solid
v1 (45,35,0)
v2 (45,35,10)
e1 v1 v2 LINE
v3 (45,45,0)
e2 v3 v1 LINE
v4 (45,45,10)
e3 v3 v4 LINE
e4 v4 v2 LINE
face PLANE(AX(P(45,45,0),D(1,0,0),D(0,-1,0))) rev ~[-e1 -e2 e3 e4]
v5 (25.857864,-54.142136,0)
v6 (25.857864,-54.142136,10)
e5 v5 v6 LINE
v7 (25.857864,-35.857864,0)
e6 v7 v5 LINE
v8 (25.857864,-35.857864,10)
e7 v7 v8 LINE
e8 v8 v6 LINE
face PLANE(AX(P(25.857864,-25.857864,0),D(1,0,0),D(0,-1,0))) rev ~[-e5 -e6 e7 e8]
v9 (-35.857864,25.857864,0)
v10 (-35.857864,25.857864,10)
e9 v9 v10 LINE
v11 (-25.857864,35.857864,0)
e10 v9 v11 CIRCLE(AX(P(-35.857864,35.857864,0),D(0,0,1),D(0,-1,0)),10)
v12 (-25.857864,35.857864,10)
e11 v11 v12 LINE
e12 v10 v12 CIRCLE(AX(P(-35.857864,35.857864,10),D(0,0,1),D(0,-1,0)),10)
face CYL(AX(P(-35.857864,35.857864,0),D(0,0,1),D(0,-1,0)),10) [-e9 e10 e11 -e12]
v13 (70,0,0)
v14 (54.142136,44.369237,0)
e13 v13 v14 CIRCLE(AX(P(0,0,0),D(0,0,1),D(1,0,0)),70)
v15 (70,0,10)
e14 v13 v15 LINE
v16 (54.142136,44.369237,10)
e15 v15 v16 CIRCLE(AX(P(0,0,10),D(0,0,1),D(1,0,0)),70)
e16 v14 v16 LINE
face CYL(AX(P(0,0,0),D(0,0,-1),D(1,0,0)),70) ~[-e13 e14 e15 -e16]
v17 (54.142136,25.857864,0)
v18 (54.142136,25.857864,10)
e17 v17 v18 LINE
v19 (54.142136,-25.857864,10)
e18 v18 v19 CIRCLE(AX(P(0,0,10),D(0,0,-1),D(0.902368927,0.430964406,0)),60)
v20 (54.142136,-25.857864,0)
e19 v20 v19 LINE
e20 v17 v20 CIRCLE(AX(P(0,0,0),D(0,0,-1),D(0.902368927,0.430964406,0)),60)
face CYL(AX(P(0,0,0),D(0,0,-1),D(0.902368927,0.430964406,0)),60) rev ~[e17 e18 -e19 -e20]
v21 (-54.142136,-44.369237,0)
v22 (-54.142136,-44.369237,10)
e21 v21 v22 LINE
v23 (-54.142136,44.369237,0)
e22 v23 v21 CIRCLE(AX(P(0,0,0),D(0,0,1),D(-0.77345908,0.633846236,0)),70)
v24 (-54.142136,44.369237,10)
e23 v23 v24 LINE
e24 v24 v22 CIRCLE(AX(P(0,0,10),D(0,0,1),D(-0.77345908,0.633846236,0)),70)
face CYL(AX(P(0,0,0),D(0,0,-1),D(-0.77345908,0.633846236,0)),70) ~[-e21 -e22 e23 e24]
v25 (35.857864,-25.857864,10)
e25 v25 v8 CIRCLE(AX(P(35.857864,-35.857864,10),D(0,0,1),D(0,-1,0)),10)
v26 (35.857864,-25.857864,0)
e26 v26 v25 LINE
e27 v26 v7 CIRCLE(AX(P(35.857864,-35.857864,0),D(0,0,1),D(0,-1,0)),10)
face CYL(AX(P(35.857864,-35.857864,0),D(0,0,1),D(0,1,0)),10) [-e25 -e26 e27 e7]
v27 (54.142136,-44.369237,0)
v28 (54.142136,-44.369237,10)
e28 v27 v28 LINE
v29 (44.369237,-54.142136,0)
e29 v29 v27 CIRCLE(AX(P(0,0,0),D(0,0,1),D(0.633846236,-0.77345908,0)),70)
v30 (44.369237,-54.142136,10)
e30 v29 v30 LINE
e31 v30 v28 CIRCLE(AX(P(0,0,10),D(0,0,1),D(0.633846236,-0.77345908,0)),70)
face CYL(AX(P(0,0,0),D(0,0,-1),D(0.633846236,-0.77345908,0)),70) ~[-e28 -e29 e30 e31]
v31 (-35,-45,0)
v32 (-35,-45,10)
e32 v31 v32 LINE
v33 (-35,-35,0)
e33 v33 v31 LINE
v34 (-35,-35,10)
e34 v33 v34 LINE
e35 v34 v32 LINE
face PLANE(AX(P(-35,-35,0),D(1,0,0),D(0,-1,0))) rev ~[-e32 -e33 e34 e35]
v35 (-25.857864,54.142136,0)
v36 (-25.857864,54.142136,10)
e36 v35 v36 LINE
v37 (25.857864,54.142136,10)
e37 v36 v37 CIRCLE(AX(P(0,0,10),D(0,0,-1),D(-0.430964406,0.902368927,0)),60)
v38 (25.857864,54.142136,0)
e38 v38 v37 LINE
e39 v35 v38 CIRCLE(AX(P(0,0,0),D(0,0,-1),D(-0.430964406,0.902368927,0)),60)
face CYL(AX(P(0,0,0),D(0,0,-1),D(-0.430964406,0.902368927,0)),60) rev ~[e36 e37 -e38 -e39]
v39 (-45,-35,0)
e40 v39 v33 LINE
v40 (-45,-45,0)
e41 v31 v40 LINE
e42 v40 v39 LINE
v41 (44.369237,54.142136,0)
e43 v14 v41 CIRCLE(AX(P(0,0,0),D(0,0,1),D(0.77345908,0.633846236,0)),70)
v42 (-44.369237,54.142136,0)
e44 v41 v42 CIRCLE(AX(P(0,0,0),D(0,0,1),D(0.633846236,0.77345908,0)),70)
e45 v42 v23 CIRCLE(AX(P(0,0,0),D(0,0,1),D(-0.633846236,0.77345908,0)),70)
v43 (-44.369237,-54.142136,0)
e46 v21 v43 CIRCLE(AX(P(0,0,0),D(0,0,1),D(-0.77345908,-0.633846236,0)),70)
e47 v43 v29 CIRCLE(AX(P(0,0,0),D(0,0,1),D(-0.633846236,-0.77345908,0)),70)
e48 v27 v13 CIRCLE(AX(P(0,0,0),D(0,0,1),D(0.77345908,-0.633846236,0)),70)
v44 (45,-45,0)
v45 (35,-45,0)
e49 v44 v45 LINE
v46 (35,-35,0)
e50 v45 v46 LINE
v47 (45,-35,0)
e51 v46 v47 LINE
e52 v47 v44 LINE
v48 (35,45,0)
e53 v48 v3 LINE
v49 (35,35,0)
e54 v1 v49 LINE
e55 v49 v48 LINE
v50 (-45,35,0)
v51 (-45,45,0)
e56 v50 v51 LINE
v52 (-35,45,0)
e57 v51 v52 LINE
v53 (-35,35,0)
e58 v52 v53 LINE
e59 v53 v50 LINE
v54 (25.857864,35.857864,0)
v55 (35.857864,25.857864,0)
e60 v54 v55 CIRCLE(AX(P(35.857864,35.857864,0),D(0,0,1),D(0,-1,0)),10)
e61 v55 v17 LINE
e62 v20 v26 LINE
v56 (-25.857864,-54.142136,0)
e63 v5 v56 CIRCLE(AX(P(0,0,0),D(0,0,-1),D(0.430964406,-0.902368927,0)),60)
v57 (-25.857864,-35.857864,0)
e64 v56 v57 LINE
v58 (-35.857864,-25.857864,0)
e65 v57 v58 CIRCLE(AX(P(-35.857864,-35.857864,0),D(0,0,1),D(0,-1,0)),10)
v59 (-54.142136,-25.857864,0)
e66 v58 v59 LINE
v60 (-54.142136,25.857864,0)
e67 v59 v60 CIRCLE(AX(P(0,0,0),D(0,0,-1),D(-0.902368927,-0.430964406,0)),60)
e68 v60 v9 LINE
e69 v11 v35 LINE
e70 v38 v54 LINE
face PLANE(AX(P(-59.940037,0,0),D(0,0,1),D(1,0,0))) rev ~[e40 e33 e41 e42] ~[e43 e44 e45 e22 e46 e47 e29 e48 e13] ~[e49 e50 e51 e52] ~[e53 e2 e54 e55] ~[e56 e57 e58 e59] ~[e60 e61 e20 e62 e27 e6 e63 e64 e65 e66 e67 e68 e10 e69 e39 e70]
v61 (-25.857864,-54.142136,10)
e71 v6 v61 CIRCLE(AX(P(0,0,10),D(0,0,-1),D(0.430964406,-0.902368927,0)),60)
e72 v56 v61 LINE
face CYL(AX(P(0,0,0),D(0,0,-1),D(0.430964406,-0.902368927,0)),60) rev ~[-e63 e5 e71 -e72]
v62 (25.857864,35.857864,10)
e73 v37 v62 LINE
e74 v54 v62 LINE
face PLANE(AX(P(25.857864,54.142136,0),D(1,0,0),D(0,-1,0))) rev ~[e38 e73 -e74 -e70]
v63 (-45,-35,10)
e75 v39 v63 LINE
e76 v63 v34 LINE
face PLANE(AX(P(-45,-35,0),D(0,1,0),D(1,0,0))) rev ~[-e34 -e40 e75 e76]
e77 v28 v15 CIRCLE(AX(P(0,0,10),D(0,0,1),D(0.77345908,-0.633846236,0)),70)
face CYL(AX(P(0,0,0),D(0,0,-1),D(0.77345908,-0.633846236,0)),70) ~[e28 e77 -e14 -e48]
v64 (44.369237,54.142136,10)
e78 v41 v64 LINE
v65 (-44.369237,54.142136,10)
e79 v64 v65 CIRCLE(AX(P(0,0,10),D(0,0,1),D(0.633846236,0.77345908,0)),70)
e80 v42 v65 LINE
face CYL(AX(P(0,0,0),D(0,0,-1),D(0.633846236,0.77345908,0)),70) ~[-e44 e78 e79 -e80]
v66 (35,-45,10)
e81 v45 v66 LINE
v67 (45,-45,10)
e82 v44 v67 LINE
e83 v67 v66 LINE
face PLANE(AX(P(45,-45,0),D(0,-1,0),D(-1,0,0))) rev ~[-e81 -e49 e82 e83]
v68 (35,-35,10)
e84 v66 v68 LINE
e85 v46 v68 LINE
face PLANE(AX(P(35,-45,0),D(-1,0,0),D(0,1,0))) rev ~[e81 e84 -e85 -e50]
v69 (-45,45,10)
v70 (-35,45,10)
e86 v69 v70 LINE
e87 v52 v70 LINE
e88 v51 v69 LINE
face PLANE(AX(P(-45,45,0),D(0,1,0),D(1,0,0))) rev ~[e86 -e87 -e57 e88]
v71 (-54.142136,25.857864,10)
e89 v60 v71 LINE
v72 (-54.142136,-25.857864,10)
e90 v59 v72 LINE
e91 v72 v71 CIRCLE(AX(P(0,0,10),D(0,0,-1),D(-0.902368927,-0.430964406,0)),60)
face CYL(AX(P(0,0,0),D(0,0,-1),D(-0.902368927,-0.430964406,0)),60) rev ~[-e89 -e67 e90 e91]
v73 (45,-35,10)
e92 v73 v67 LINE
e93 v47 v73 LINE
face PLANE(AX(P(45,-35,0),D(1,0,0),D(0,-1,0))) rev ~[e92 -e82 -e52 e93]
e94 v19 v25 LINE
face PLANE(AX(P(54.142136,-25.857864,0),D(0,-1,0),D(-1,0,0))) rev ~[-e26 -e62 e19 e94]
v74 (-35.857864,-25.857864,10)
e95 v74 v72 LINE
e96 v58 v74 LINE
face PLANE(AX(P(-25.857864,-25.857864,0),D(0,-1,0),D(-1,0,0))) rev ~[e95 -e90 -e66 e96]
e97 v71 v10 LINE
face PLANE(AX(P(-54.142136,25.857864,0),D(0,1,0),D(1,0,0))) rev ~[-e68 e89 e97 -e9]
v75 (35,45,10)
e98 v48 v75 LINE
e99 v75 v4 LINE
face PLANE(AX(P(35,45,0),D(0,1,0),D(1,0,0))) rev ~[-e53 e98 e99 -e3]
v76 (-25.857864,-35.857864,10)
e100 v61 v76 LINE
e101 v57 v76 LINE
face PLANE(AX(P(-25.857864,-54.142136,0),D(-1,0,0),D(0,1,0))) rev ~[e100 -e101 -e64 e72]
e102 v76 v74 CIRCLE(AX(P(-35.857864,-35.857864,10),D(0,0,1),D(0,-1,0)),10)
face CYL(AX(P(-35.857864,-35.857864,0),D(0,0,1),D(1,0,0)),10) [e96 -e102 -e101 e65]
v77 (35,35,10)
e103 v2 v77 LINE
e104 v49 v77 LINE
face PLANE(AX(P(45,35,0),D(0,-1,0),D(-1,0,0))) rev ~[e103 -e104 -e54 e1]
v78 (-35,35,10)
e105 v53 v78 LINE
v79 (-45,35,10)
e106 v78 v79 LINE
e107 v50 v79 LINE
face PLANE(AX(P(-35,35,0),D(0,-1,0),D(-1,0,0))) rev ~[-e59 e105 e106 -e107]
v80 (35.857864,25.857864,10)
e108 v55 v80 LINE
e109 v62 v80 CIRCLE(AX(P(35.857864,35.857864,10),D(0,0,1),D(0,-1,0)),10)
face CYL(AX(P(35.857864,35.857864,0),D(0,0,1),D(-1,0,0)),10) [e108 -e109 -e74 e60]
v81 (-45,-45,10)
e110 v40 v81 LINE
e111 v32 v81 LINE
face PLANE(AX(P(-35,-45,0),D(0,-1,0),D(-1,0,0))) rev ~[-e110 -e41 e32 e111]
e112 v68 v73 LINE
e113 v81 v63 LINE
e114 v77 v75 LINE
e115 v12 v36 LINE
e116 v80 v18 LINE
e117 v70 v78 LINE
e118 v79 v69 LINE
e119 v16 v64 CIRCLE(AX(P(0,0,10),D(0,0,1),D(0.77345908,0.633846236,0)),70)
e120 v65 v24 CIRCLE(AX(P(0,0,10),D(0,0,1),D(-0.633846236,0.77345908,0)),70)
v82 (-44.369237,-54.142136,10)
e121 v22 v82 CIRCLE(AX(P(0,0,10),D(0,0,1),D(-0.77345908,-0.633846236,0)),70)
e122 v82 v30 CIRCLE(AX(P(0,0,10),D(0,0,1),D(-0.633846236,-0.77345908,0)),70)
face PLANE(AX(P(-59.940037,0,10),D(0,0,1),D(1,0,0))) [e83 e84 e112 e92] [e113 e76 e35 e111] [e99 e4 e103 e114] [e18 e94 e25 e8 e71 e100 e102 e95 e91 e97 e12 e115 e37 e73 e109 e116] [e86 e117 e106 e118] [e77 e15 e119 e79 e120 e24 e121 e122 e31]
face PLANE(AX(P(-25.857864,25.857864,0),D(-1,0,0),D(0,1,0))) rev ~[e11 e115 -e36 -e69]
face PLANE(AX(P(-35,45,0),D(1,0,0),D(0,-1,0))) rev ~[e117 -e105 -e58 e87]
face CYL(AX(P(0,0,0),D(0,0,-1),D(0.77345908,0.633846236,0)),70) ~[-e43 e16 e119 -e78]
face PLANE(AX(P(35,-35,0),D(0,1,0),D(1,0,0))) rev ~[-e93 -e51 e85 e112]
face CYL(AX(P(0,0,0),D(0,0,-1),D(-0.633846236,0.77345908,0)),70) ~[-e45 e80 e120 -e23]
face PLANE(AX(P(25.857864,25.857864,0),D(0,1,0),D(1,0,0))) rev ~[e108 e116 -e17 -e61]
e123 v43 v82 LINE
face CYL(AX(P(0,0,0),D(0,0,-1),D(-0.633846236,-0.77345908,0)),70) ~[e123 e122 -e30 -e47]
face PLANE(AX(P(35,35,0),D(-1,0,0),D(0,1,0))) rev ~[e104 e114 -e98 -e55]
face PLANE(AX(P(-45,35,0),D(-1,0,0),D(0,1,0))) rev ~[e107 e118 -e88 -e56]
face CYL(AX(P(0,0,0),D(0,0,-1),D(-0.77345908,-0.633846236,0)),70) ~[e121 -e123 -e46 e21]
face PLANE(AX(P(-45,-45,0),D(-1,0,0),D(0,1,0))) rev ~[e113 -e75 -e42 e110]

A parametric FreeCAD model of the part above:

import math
import FreeCAD as App
import Part
import Sketcher
from FreeCAD import Vector
Q = App.Units.Quantity


def edges_at(feature, points):
    """Names of the edges that pass closest to the given points."""
    edges = feature.Shape.Edges
    near = lambda p: min(range(len(edges)), key=lambda i: edges[i].distToShape(Part.Vertex(*p))[0])
    return sorted({f"Edge{near(p) + 1}" for p in points})

doc = App.newDocument("Part")
body = doc.addObject("PartDesign::Body", "Body")

# Sketch on XY plane
sketch1 = body.newObject("Sketcher::SketchObject", "Sketch")
sketch1.AttachmentSupport = (doc.getObject("XY_Plane"), [""])
sketch1.MapMode = "FlatFace"
sketch1.addGeometry(Part.ArcOfCircle(Part.Circle(Vector(0, 0, 0), Vector(0, 0, 1), 70), math.radians(141), math.radians(219)), False)
sketch1.addGeometry(Part.ArcOfCircle(Part.Circle(Vector(0, 0, 0), Vector(0, 0, 1), 70), math.radians(-140.67), math.radians(-129.33)), False)
sketch1.addGeometry(Part.ArcOfCircle(Part.Circle(Vector(0, 0, 0), Vector(0, 0, 1), 70), math.radians(-129), math.radians(-51)), False)
sketch1.addGeometry(Part.ArcOfCircle(Part.Circle(Vector(0, 0, 0), Vector(0, 0, 1), 70), math.radians(-50.67), math.radians(-39.33)), False)
sketch1.addGeometry(Part.ArcOfCircle(Part.Circle(Vector(0, 0, 0), Vector(0, 0, 1), 70), math.radians(-39), math.radians(0)), False)
sketch1.addGeometry(Part.ArcOfCircle(Part.Circle(Vector(0, 0, 0), Vector(0, 0, 1), 70), math.radians(0), math.radians(39)), False)
sketch1.addGeometry(Part.ArcOfCircle(Part.Circle(Vector(0, 0, 0), Vector(0, 0, 1), 70), math.radians(39.33), math.radians(50.67)), False)
sketch1.addGeometry(Part.ArcOfCircle(Part.Circle(Vector(0, 0, 0), Vector(0, 0, 1), 70), math.radians(51), math.radians(129)), False)
sketch1.addGeometry(Part.ArcOfCircle(Part.Circle(Vector(0, 0, 0), Vector(0, 0, 1), 70), math.radians(129.33), math.radians(140.67)), False)
sketch1.addGeometry(Part.ArcOfCircle(Part.Circle(Vector(0, 0, 0), Vector(0, 0, 1), 60), math.radians(154), math.radians(206)), False)
sketch1.addGeometry(Part.LineSegment(Vector(-54, 26, 0), Vector(-26, 26, 0)), False)
sketch1.addGeometry(Part.LineSegment(Vector(-26, 26, 0), Vector(-26, 54, 0)), False)
sketch1.addGeometry(Part.ArcOfCircle(Part.Circle(Vector(0, 0, 0), Vector(0, 0, 1), 60), math.radians(64), math.radians(116)), False)
sketch1.addGeometry(Part.LineSegment(Vector(26, 54, 0), Vector(26, 26, 0)), False)
sketch1.addGeometry(Part.LineSegment(Vector(26, 26, 0), Vector(54, 26, 0)), False)
sketch1.addGeometry(Part.ArcOfCircle(Part.Circle(Vector(0, 0, 0), Vector(0, 0, 1), 60), math.radians(-26), math.radians(26)), False)
sketch1.addGeometry(Part.LineSegment(Vector(54, -26, 0), Vector(26, -26, 0)), False)
sketch1.addGeometry(Part.LineSegment(Vector(26, -26, 0), Vector(26, -54, 0)), False)
sketch1.addGeometry(Part.ArcOfCircle(Part.Circle(Vector(0, 0, 0), Vector(0, 0, 1), 60), math.radians(-116), math.radians(-64)), False)
sketch1.addGeometry(Part.LineSegment(Vector(-26, -54, 0), Vector(-26, -26, 0)), False)
sketch1.addGeometry(Part.LineSegment(Vector(-26, -26, 0), Vector(-54, -26, 0)), False)
sketch1.addGeometry(Part.LineSegment(Vector(-45, 45, 0), Vector(-35, 45, 0)), False)
sketch1.addGeometry(Part.LineSegment(Vector(-35, 45, 0), Vector(-35, 35, 0)), False)
sketch1.addGeometry(Part.LineSegment(Vector(-35, 35, 0), Vector(-45, 35, 0)), False)
sketch1.addGeometry(Part.LineSegment(Vector(-45, 35, 0), Vector(-45, 45, 0)), False)
sketch1.addGeometry(Part.LineSegment(Vector(45, 45, 0), Vector(45, 35, 0)), False)
sketch1.addGeometry(Part.LineSegment(Vector(45, 35, 0), Vector(35, 35, 0)), False)
sketch1.addGeometry(Part.LineSegment(Vector(35, 35, 0), Vector(35, 45, 0)), False)
sketch1.addGeometry(Part.LineSegment(Vector(35, 45, 0), Vector(45, 45, 0)), False)
sketch1.addGeometry(Part.LineSegment(Vector(45, -45, 0), Vector(35, -45, 0)), False)
sketch1.addGeometry(Part.LineSegment(Vector(35, -45, 0), Vector(35, -35, 0)), False)
sketch1.addGeometry(Part.LineSegment(Vector(35, -35, 0), Vector(45, -35, 0)), False)
sketch1.addGeometry(Part.LineSegment(Vector(45, -35, 0), Vector(45, -45, 0)), False)
sketch1.addGeometry(Part.LineSegment(Vector(-45, -45, 0), Vector(-45, -35, 0)), False)
sketch1.addGeometry(Part.LineSegment(Vector(-45, -35, 0), Vector(-35, -35, 0)), False)
sketch1.addGeometry(Part.LineSegment(Vector(-35, -35, 0), Vector(-35, -45, 0)), False)
sketch1.addGeometry(Part.LineSegment(Vector(-35, -45, 0), Vector(-45, -45, 0)), False)
sketch1.addConstraint(Sketcher.Constraint("Tangent", 0, 2, 1, 1))
sketch1.addConstraint(Sketcher.Constraint("Tangent", 1, 2, 2, 1))
sketch1.addConstraint(Sketcher.Constraint("Tangent", 2, 2, 3, 1))
sketch1.addConstraint(Sketcher.Constraint("Tangent", 3, 2, 4, 1))
sketch1.addConstraint(Sketcher.Constraint("Tangent", 4, 2, 5, 1))
sketch1.addConstraint(Sketcher.Constraint("Tangent", 5, 2, 6, 1))
sketch1.addConstraint(Sketcher.Constraint("Tangent", 6, 2, 7, 1))
sketch1.addConstraint(Sketcher.Constraint("Tangent", 7, 2, 8, 1))
sketch1.addConstraint(Sketcher.Constraint("Tangent", 8, 2, 0, 1))
sketch1.addConstraint(Sketcher.Constraint("Coincident", 9, 1, 10, 1))
sketch1.addConstraint(Sketcher.Constraint("Coincident", 10, 2, 11, 1))
sketch1.addConstraint(Sketcher.Constraint("Coincident", 11, 2, 12, 2))
sketch1.addConstraint(Sketcher.Constraint("Coincident", 12, 1, 13, 1))
sketch1.addConstraint(Sketcher.Constraint("Coincident", 13, 2, 14, 1))
sketch1.addConstraint(Sketcher.Constraint("Coincident", 14, 2, 15, 2))
sketch1.addConstraint(Sketcher.Constraint("Coincident", 15, 1, 16, 1))
sketch1.addConstraint(Sketcher.Constraint("Coincident", 16, 2, 17, 1))
sketch1.addConstraint(Sketcher.Constraint("Coincident", 17, 2, 18, 2))
sketch1.addConstraint(Sketcher.Constraint("Coincident", 18, 1, 19, 1))
sketch1.addConstraint(Sketcher.Constraint("Coincident", 19, 2, 20, 1))
sketch1.addConstraint(Sketcher.Constraint("Coincident", 20, 2, 9, 2))
sketch1.addConstraint(Sketcher.Constraint("Coincident", 21, 2, 22, 1))
sketch1.addConstraint(Sketcher.Constraint("Coincident", 22, 2, 23, 1))
sketch1.addConstraint(Sketcher.Constraint("Coincident", 23, 2, 24, 1))
sketch1.addConstraint(Sketcher.Constraint("Coincident", 24, 2, 21, 1))
sketch1.addConstraint(Sketcher.Constraint("Coincident", 25, 2, 26, 1))
sketch1.addConstraint(Sketcher.Constraint("Coincident", 26, 2, 27, 1))
sketch1.addConstraint(Sketcher.Constraint("Coincident", 27, 2, 28, 1))
sketch1.addConstraint(Sketcher.Constraint("Coincident", 28, 2, 25, 1))
sketch1.addConstraint(Sketcher.Constraint("Coincident", 29, 2, 30, 1))
sketch1.addConstraint(Sketcher.Constraint("Coincident", 30, 2, 31, 1))
sketch1.addConstraint(Sketcher.Constraint("Coincident", 31, 2, 32, 1))
sketch1.addConstraint(Sketcher.Constraint("Coincident", 32, 2, 29, 1))
sketch1.addConstraint(Sketcher.Constraint("Coincident", 33, 2, 34, 1))
sketch1.addConstraint(Sketcher.Constraint("Coincident", 34, 2, 35, 1))
sketch1.addConstraint(Sketcher.Constraint("Coincident", 35, 2, 36, 1))
sketch1.addConstraint(Sketcher.Constraint("Coincident", 36, 2, 33, 1))
sketch1.addConstraint(Sketcher.Constraint("Horizontal", 10))
sketch1.addConstraint(Sketcher.Constraint("Vertical", 11))
sketch1.addConstraint(Sketcher.Constraint("Vertical", 13))
sketch1.addConstraint(Sketcher.Constraint("Horizontal", 14))
sketch1.addConstraint(Sketcher.Constraint("Horizontal", 16))
sketch1.addConstraint(Sketcher.Constraint("Vertical", 17))
sketch1.addConstraint(Sketcher.Constraint("Vertical", 19))
sketch1.addConstraint(Sketcher.Constraint("Horizontal", 20))
sketch1.addConstraint(Sketcher.Constraint("Horizontal", 21))
sketch1.addConstraint(Sketcher.Constraint("Vertical", 22))
sketch1.addConstraint(Sketcher.Constraint("Horizontal", 23))
sketch1.addConstraint(Sketcher.Constraint("Vertical", 24))
sketch1.addConstraint(Sketcher.Constraint("Vertical", 25))
sketch1.addConstraint(Sketcher.Constraint("Horizontal", 26))
sketch1.addConstraint(Sketcher.Constraint("Vertical", 27))
sketch1.addConstraint(Sketcher.Constraint("Horizontal", 28))
sketch1.addConstraint(Sketcher.Constraint("Horizontal", 29))
sketch1.addConstraint(Sketcher.Constraint("Vertical", 30))
sketch1.addConstraint(Sketcher.Constraint("Horizontal", 31))
sketch1.addConstraint(Sketcher.Constraint("Vertical", 32))
sketch1.addConstraint(Sketcher.Constraint("Vertical", 33))
sketch1.addConstraint(Sketcher.Constraint("Horizontal", 34))
sketch1.addConstraint(Sketcher.Constraint("Vertical", 35))
sketch1.addConstraint(Sketcher.Constraint("Horizontal", 36))
sketch1.addConstraint(Sketcher.Constraint("Coincident", 0, 3, -1, 1))
sketch1.addConstraint(Sketcher.Constraint("Coincident", 2, 3, -1, 1))
sketch1.addConstraint(Sketcher.Constraint("Coincident", 4, 3, -1, 1))
sketch1.addConstraint(Sketcher.Constraint("Coincident", 6, 3, -1, 1))
sketch1.addConstraint(Sketcher.Constraint("Coincident", 9, 3, -1, 1))
sketch1.addConstraint(Sketcher.Constraint("Coincident", 12, 3, -1, 1))
sketch1.addConstraint(Sketcher.Constraint("Coincident", 15, 3, -1, 1))
sketch1.addConstraint(Sketcher.Constraint("Coincident", 18, 3, -1, 1))
sketch1.addConstraint(Sketcher.Constraint("Equal", 9, 12))
sketch1.addConstraint(Sketcher.Constraint("Equal", 12, 15))
sketch1.addConstraint(Sketcher.Constraint("Equal", 15, 18))
sketch1.addConstraint(Sketcher.Constraint("Symmetric", 10, 2, 16, 2, -1, 1))
sketch1.addConstraint(Sketcher.Constraint("Symmetric", 13, 2, 19, 2, -1, 1))
sketch1.addConstraint(Sketcher.Constraint("Symmetric", 21, 2, 29, 2, -1, 1))
sketch1.addConstraint(Sketcher.Constraint("Symmetric", 23, 2, 31, 2, -1, 1))
sketch1.addConstraint(Sketcher.Constraint("Symmetric", 25, 2, 33, 2, -1, 1))
sketch1.addConstraint(Sketcher.Constraint("Symmetric", 27, 2, 35, 2, -1, 1))
sketch1.addConstraint(Sketcher.Constraint("Symmetric", 10, 2, 13, 2, -2))
sketch1.addConstraint(Sketcher.Constraint("Symmetric", 23, 2, 25, 2, -2))
sketch1.addConstraint(Sketcher.Constraint("Symmetric", 21, 2, 27, 2, -2))
sketch1.addConstraint(Sketcher.Constraint("PointOnObject", 4, 2, -1))
sketch1.addConstraint(Sketcher.Constraint("Horizontal", 1, 2, 2, 2))
sketch1.addConstraint(Sketcher.Constraint("Horizontal", 0, 2, 3, 2))
sketch1.addConstraint(Sketcher.Constraint("Horizontal", 6, 2, 7, 2))
sketch1.addConstraint(Sketcher.Constraint("Horizontal", 5, 2, 8, 2))
sketch1.addConstraint(Sketcher.Constraint("Horizontal", 7, 2, 11, 2))
sketch1.addConstraint(Sketcher.Constraint("Horizontal", 2, 2, 17, 2))
sketch1.addConstraint(Sketcher.Constraint("Vertical", 3, 2, 5, 2))
sketch1.addConstraint(Sketcher.Constraint("Vertical", 8, 2, 9, 1))
sketch1.addConstraint(Sketcher.Constraint("Equal", 20, 11))
sketch1.addConstraint(Sketcher.Constraint("Equal", 36, 22))
sketch1.addConstraint(Sketcher.Constraint("Radius", 0, Q("70 mm")))
sketch1.addConstraint(Sketcher.Constraint("Radius", 9, Q("60 mm")))
sketch1.addConstraint(Sketcher.Constraint("DistanceX", 21, 1, 21, 2, Q("10 mm")))
sketch1.addConstraint(Sketcher.Constraint("DistanceX", 21, 2, -1, 1, Q("35 mm")))
sketch1.addConstraint(Sketcher.Constraint("DistanceY", -1, 1, 21, 2, Q("45 mm")))
sketch1.addConstraint(Sketcher.Constraint("DistanceX", 10, 1, 10, 2, Q("28.284271 mm")))
pad1 = body.newObject("PartDesign::Pad", "Pad")
pad1.Profile = sketch1
pad1.Length = 10
doc.recompute()

fillet = body.newObject("PartDesign::Fillet", "Fillet")
fillet.Base = (pad1, edges_at(pad1, [
    (25.858, 25.858, 5),
    (25.858, -25.858, 5),
    (-25.858, 25.858, 5),
    (-25.858, -25.858, 5),
]))
fillet.Radius = 10

doc.recompute()
